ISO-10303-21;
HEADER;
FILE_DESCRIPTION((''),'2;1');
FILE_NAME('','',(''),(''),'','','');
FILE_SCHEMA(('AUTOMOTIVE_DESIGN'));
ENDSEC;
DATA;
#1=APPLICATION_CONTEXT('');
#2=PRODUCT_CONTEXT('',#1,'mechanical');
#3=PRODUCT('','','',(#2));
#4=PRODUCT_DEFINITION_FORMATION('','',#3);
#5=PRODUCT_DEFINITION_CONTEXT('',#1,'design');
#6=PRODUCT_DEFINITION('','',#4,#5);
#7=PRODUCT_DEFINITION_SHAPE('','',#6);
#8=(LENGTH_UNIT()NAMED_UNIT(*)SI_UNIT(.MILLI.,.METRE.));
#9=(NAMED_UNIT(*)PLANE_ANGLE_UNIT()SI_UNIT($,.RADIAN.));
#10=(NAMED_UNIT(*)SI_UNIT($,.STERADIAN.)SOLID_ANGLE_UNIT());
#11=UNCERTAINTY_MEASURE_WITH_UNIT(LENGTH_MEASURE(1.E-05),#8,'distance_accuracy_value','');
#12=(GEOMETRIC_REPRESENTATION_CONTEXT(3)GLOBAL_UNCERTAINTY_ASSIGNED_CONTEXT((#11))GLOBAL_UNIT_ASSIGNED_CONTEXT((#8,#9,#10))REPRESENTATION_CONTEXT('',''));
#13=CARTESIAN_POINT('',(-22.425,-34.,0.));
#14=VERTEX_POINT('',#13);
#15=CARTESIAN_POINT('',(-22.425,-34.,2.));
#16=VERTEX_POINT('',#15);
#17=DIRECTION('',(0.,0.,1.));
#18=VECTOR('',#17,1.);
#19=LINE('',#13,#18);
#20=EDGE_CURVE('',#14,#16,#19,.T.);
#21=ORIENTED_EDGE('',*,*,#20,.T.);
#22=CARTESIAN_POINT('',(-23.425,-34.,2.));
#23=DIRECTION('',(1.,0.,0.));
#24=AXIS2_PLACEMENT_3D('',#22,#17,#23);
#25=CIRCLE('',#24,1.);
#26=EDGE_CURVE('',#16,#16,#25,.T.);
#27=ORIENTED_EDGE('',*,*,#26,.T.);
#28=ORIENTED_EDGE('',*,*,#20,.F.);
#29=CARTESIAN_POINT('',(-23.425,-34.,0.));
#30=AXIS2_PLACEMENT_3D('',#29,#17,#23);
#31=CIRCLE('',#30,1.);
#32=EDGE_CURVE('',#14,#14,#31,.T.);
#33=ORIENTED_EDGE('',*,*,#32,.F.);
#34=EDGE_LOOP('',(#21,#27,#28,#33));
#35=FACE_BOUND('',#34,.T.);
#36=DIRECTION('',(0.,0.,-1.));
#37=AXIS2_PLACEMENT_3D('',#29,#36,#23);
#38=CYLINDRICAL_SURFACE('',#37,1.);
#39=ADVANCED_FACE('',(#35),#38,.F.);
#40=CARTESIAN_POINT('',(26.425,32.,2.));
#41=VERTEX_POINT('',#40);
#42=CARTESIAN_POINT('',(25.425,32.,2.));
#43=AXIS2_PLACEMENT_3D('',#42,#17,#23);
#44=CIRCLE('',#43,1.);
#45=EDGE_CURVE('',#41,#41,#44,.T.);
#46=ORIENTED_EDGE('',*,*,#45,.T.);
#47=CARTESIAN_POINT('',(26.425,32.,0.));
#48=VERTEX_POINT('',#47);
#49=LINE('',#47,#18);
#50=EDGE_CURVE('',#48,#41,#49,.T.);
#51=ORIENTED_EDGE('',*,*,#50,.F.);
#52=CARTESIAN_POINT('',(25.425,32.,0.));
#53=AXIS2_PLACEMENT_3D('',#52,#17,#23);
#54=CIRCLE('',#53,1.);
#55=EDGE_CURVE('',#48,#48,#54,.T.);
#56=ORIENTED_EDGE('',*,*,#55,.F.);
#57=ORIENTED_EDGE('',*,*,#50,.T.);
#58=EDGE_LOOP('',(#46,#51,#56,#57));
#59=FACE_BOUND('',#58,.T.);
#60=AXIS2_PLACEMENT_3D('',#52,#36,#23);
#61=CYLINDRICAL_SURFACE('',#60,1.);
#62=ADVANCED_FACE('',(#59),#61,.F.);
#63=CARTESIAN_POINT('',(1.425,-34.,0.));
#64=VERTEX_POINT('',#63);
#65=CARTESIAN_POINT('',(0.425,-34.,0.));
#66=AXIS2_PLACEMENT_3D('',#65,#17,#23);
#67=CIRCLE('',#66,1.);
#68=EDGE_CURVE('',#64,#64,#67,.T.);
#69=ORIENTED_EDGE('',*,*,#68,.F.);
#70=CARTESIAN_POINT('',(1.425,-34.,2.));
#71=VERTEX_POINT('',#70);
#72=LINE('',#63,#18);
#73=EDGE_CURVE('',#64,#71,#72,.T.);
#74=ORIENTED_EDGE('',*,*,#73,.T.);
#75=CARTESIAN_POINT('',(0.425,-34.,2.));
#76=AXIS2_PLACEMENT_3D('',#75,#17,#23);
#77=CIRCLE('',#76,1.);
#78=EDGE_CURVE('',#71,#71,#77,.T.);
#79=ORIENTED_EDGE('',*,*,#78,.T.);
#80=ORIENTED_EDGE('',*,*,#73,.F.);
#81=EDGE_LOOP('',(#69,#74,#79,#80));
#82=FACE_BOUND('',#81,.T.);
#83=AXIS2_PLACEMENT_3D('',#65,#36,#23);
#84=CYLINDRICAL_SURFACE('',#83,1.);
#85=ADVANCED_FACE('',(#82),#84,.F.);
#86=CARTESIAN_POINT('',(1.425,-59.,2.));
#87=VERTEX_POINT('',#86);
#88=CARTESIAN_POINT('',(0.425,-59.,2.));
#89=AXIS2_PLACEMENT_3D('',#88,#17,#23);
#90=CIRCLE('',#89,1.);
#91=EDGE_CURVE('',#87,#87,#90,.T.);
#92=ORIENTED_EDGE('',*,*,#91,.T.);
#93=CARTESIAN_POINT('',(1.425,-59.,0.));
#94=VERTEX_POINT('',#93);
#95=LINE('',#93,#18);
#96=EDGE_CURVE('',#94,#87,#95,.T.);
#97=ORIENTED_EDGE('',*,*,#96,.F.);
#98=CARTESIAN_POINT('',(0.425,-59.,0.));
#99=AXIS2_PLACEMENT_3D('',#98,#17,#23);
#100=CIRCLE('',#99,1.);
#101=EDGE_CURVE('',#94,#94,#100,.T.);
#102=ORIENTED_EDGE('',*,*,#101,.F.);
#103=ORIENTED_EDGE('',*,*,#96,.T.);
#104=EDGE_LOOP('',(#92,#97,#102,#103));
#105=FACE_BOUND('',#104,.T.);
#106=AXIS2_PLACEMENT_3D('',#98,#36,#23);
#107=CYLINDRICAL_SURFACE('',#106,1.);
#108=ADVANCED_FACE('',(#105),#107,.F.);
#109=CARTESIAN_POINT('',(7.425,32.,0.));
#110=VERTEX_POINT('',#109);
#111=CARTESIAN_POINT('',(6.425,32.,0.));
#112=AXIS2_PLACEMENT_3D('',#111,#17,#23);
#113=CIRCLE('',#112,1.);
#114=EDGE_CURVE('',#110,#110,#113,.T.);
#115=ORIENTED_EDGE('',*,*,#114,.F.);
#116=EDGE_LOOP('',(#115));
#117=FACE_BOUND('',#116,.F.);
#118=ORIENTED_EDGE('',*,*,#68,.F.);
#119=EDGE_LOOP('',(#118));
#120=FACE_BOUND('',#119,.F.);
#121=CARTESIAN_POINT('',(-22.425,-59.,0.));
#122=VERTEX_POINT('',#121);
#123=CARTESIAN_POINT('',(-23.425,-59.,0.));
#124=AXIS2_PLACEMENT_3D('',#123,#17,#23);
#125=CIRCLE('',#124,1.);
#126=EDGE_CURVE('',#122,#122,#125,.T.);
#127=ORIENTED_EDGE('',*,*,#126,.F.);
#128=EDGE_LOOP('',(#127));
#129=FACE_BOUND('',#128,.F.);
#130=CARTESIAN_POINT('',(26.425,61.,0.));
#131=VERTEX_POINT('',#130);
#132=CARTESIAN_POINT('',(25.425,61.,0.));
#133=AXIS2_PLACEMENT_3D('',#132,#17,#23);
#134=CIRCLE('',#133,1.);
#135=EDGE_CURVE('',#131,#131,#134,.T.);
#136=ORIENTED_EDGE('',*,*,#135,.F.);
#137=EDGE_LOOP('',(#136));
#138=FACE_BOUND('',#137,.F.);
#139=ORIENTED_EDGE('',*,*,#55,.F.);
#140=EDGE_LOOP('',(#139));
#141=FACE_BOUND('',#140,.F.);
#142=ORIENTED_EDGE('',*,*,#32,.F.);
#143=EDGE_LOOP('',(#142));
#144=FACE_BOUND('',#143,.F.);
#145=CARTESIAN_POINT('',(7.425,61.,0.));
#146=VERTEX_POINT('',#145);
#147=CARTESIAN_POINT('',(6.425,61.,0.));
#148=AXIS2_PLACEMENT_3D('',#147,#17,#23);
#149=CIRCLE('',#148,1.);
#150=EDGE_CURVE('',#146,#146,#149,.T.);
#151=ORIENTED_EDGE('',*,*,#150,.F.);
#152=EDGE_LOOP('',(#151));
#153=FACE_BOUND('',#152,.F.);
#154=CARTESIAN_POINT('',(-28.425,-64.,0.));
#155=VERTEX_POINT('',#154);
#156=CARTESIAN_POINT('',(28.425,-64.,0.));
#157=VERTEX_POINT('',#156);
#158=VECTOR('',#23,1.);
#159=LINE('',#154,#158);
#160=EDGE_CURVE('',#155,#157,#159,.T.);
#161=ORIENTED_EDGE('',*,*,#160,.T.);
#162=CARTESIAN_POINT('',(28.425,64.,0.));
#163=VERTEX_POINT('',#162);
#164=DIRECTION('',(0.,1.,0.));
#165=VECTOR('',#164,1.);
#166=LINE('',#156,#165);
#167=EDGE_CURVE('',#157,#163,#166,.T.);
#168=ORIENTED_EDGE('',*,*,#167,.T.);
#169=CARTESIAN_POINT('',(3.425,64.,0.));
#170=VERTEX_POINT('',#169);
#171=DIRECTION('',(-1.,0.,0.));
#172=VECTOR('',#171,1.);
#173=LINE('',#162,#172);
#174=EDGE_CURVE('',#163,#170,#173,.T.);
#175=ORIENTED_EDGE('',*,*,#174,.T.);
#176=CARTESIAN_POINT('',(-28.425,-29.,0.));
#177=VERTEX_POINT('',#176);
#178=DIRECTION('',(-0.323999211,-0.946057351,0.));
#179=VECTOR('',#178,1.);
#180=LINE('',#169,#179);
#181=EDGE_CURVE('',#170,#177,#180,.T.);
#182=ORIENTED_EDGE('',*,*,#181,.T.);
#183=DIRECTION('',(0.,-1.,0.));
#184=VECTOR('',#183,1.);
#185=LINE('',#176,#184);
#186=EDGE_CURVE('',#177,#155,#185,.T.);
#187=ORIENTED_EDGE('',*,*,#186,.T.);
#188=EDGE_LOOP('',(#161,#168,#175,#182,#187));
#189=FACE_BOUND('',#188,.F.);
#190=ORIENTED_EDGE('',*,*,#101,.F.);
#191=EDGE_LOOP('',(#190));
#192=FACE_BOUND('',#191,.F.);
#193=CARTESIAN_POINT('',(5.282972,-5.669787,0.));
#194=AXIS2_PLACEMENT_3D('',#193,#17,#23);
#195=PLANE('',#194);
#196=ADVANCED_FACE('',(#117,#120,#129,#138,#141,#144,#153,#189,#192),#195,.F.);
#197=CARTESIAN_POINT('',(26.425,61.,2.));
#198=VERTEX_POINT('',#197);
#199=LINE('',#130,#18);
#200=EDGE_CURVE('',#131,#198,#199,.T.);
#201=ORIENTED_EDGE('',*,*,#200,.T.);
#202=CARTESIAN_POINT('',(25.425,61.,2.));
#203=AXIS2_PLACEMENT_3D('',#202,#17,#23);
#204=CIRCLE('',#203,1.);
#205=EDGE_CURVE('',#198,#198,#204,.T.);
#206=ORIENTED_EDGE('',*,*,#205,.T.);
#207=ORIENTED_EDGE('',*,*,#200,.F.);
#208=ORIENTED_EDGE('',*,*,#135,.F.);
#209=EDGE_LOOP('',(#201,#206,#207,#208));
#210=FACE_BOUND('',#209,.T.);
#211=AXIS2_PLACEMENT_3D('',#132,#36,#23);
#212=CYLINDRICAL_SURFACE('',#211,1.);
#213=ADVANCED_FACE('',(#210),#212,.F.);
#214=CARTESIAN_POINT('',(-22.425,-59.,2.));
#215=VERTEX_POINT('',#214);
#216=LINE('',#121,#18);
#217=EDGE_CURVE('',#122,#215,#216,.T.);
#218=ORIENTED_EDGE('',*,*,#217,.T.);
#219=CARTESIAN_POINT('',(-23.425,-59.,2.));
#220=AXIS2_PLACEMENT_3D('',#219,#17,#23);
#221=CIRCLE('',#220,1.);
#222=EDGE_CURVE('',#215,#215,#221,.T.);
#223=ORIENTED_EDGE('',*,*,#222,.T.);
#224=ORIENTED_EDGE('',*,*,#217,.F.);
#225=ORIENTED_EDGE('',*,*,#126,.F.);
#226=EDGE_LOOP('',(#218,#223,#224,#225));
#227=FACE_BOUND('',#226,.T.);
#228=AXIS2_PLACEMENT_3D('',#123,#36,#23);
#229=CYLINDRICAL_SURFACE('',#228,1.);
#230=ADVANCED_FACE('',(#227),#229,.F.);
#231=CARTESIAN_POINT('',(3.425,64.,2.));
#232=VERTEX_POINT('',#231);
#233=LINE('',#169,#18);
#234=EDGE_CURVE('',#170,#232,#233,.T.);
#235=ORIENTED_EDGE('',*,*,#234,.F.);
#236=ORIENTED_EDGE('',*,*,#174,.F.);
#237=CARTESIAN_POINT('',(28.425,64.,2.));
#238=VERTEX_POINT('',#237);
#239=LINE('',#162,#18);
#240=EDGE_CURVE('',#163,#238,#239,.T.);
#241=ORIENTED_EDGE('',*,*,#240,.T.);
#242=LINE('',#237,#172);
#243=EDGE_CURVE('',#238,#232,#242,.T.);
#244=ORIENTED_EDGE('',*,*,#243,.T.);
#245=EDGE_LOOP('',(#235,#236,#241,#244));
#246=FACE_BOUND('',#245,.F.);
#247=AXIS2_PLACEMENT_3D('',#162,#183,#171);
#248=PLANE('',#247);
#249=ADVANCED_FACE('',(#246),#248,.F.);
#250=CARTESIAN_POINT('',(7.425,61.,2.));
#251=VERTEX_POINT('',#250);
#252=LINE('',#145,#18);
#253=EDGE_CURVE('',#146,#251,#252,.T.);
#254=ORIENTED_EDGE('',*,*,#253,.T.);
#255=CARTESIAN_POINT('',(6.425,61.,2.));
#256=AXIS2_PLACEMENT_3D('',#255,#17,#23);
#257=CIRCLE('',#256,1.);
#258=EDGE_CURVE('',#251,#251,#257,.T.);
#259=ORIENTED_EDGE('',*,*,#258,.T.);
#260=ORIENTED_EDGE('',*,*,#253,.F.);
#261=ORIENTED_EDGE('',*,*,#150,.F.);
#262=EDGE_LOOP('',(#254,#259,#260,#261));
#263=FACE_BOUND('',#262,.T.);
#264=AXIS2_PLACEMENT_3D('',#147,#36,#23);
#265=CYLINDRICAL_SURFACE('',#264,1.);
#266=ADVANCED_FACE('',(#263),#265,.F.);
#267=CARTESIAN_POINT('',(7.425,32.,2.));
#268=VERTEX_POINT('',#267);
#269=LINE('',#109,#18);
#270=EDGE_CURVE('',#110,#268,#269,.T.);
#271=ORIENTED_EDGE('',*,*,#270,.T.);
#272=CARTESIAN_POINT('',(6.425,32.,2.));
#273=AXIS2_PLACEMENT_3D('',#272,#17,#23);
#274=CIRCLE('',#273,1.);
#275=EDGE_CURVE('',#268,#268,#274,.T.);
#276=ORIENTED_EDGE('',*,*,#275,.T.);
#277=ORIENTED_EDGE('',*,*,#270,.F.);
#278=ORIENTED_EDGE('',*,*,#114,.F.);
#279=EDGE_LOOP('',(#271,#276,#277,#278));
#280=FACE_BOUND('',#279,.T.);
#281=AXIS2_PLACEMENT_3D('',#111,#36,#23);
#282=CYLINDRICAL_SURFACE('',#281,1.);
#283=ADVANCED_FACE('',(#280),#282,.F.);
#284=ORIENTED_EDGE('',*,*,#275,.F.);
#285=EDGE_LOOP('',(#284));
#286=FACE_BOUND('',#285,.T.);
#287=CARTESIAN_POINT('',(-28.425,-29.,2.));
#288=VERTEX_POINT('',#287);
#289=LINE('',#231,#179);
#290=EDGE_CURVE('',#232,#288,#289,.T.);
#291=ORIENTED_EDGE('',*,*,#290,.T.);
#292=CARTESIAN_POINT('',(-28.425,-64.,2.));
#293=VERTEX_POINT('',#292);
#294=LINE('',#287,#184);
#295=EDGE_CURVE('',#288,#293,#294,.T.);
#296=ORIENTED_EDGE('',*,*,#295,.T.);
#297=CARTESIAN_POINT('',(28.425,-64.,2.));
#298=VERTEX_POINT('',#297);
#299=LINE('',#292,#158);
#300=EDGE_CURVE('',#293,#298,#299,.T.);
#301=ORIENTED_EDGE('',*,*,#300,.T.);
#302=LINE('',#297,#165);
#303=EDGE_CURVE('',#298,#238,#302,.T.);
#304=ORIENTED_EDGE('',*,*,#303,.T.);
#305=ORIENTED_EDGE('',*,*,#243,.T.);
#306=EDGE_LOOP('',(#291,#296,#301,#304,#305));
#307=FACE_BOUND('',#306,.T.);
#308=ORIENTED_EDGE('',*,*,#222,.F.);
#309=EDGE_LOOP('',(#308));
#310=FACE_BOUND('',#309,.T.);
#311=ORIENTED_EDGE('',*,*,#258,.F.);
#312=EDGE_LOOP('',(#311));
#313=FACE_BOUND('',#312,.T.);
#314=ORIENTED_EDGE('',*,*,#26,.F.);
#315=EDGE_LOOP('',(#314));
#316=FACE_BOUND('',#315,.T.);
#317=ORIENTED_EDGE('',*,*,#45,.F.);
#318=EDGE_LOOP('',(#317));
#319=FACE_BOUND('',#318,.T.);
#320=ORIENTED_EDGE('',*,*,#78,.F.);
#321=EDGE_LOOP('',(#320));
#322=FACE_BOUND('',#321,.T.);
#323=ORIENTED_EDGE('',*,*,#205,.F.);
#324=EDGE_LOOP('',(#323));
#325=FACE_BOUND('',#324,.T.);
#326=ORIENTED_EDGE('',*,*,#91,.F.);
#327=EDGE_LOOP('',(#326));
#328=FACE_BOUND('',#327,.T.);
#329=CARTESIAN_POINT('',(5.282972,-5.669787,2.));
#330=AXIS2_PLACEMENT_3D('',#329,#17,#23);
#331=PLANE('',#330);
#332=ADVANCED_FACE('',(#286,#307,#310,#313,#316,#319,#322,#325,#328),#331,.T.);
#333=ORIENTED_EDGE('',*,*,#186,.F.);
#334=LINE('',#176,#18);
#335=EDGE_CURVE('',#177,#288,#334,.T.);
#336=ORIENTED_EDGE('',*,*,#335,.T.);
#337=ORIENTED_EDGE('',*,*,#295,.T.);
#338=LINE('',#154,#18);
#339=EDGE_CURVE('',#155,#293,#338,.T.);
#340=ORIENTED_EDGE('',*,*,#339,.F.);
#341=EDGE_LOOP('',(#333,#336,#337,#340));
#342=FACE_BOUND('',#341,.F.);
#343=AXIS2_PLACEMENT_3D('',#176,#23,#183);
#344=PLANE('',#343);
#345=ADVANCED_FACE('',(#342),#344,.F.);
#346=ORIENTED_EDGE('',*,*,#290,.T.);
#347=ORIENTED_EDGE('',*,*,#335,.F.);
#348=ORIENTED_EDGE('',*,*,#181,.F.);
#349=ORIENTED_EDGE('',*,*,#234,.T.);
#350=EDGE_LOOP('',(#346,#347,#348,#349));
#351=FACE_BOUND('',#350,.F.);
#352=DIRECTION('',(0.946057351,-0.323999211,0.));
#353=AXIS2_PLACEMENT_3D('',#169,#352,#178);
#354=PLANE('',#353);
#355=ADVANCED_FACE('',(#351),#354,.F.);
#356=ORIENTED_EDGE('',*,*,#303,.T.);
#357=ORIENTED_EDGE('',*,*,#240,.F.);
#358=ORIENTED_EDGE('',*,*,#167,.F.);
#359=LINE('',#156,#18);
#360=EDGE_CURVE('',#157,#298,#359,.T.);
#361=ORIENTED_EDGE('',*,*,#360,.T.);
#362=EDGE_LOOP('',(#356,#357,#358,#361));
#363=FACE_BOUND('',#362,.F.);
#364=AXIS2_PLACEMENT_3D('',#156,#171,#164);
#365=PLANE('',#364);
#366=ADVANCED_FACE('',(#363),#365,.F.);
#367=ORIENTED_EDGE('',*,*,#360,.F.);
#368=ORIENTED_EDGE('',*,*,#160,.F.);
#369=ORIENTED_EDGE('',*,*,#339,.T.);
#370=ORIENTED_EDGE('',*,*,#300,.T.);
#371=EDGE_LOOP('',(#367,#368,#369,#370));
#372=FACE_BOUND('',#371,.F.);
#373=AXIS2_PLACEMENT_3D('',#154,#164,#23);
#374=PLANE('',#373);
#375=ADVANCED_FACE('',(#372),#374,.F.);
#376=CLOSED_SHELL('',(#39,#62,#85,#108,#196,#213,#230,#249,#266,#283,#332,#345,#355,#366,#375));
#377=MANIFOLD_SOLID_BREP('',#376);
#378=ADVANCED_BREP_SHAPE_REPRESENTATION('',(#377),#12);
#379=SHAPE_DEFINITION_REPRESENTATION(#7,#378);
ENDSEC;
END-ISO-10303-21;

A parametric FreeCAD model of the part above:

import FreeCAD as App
import Part
import Sketcher
from FreeCAD import Vector

doc = App.newDocument("Part")
params = doc.addObject("Spreadsheet::Sheet", "Params")
for row, (alias, value) in enumerate([
    ("sketch1_diameter", "2 mm"),
    ("sketch1_width", "25 mm"),
    ("sketch1_height", "128 mm"),
    ("sketch1_height2", "35 mm"),
    ("sketch1_width2", "56.85 mm"),
    ("pad1_length", "2 mm"),
], start=1):
    params.set(f"A{row}", alias)
    params.set(f"B{row}", "=" + value)
    params.setAlias(f"B{row}", alias)

body = doc.addObject("PartDesign::Body", "Body")

sketch1 = doc.addObject("Sketcher::SketchObject", "Sketch")
body.addObject(sketch1)
sketch1.AttachmentSupport = (doc.XY_Plane, [""])
sketch1.MapMode = "FlatFace"
sketch1.addGeometry([
    Part.LineSegment(Vector(28.4, -64, 0), Vector(28.4, 64, 0)),
    Part.LineSegment(Vector(28.4, 64, 0), Vector(3.4, 64, 0)),
    Part.LineSegment(Vector(3.4, 64, 0), Vector(-28.4, -29, 0)),
    Part.LineSegment(Vector(-28.4, -29, 0), Vector(-28.4, -64, 0)),
    Part.LineSegment(Vector(-28.4, -64, 0), Vector(28.4, -64, 0)),
    Part.Circle(Vector(-23.4, -59, 0), Vector(0, 0, 1), 1),
    Part.Circle(Vector(-23.4, -34, 0), Vector(0, 0, 1), 1),
    Part.Circle(Vector(0.4, -59, 0), Vector(0, 0, 1), 1),
    Part.Circle(Vector(0.4, -34, 0), Vector(0, 0, 1), 1),
    Part.Circle(Vector(6.4, 32, 0), Vector(0, 0, 1), 1),
    Part.Circle(Vector(6.4, 61, 0), Vector(0, 0, 1), 1),
    Part.Circle(Vector(25.4, 32, 0), Vector(0, 0, 1), 1),
    Part.Circle(Vector(25.4, 61, 0), Vector(0, 0, 1), 1),
], False)
sketch1.addConstraint([
    Sketcher.Constraint("Coincident", 0, 2, 1, 1),
    Sketcher.Constraint("Coincident", 1, 2, 2, 1),
    Sketcher.Constraint("Coincident", 2, 2, 3, 1),
    Sketcher.Constraint("Coincident", 3, 2, 4, 1),
    Sketcher.Constraint("Coincident", 4, 2, 0, 1),
    Sketcher.Constraint("Vertical", 0),
    Sketcher.Constraint("Horizontal", 1),
    Sketcher.Constraint("Vertical", 3),
    Sketcher.Constraint("Horizontal", 4),
    Sketcher.Constraint("Equal", 5, 6),
    Sketcher.Constraint("Equal", 6, 7),
    Sketcher.Constraint("Equal", 7, 8),
    Sketcher.Constraint("Equal", 8, 9),
    Sketcher.Constraint("Equal", 9, 10),
    Sketcher.Constraint("Equal", 10, 11),
    Sketcher.Constraint("Equal", 11, 12),
    Sketcher.Constraint("Symmetric", 0, 2, 3, 2, -1, 1),
    Sketcher.Constraint("Horizontal", 5, 3, 7, 3),
    Sketcher.Constraint("Horizontal", 6, 3, 8, 3),
    Sketcher.Constraint("Horizontal", 9, 3, 11, 3),
    Sketcher.Constraint("Horizontal", 10, 3, 12, 3),
    Sketcher.Constraint("Vertical", 5, 3, 6, 3),
    Sketcher.Constraint("Vertical", 7, 3, 8, 3),
    Sketcher.Constraint("Vertical", 9, 3, 10, 3),
    Sketcher.Constraint("Vertical", 11, 3, 12, 3),
    Sketcher.Constraint("Diameter", 5, 2.0),
    Sketcher.Constraint("DistanceX", 1, 2, 1, 1, 25.0),
    Sketcher.Constraint("DistanceY", 0, 1, 0, 2, 128.0),
    Sketcher.Constraint("DistanceY", 3, 2, 3, 1, 35.0),
    Sketcher.Constraint("DistanceY", 5, 3, -1, 1, 59.0),
    Sketcher.Constraint("DistanceY", 6, 3, -1, 1, 34.0),
    Sketcher.Constraint("DistanceY", -1, 1, 9, 3, 32.0),
    Sketcher.Constraint("DistanceY", -1, 1, 10, 3, 61.0),
    Sketcher.Constraint("DistanceX", 8, 3, 9, 3, 6.0),
    Sketcher.Constraint("DistanceX", 9, 3, 11, 3, 19.0),
    Sketcher.Constraint("DistanceX", 12, 3, 0, 2, 3.0),
    Sketcher.Constraint("DistanceX", 2, 2, 6, 3, 5.0),
    Sketcher.Constraint("DistanceX", 4, 1, 4, 2, 56.85),
])
sketch1.setExpression("Constraints[25]", "Params.sketch1_diameter")
sketch1.setExpression("Constraints[26]", "Params.sketch1_width")
sketch1.setExpression("Constraints[27]", "Params.sketch1_height")
sketch1.setExpression("Constraints[28]", "Params.sketch1_height2")
sketch1.setExpression("Constraints[37]", "Params.sketch1_width2")
pad1 = doc.addObject("PartDesign::Pad", "Pad")
body.addObject(pad1)
pad1.Profile = sketch1
pad1.setExpression("Length", "Params.pad1_length")

doc.recompute()
